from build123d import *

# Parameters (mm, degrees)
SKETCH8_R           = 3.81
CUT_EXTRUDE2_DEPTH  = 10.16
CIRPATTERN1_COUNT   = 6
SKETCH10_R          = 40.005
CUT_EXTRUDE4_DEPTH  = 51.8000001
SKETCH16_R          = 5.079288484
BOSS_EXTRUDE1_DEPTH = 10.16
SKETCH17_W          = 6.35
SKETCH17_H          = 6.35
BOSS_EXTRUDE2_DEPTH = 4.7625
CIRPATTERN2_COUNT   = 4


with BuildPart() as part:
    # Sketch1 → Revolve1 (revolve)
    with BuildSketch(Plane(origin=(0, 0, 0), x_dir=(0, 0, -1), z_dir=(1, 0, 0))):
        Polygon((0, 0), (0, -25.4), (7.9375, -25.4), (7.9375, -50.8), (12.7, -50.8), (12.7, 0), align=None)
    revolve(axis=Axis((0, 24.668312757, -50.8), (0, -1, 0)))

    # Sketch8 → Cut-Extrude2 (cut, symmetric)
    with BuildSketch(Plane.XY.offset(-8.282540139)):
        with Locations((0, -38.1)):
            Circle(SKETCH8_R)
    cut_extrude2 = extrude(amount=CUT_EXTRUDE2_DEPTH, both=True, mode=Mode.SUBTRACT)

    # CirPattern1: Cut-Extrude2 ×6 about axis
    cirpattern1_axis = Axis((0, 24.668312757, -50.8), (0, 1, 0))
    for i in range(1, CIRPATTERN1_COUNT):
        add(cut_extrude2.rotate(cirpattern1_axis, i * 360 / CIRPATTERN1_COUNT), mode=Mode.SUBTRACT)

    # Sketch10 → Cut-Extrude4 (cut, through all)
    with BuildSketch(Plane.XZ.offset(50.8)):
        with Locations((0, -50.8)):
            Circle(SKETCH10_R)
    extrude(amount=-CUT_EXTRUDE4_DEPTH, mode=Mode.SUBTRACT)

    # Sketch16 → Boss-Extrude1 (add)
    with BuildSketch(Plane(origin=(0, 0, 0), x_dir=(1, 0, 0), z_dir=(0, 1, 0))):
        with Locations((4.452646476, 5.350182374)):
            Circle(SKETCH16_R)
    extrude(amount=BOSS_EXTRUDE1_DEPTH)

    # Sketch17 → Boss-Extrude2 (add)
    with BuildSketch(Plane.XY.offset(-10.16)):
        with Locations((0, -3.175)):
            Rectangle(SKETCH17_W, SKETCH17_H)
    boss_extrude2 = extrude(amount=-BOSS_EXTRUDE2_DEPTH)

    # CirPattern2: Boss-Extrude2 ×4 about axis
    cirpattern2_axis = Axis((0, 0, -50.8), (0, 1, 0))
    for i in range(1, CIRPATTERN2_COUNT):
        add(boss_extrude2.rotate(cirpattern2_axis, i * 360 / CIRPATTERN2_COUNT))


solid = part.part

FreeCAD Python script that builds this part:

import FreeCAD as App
import Part
import Sketcher
Q = App.Units.Quantity


def add_polygon(sketch, points):
    """Adds a closed chain of lines whose ends are joined by coincident constraints."""
    first, n = sketch.GeometryCount, len(points)
    for a, b in zip(points, points[1:] + points[:1]):
        sketch.addGeometry(Part.LineSegment(App.Vector(*a, 0), App.Vector(*b, 0)), False)
    for i in range(n):
        sketch.addConstraint(Sketcher.Constraint("Coincident", first + i, 2, first + (i + 1) % n, 1))

doc = App.newDocument("Part")
params = doc.addObject("Spreadsheet::Sheet", "Params")
for row, (alias, value) in enumerate([
    ("sketch1_width", "1 in"),
    ("sketch1_height", "0.5 in"),
    ("sketch1_height2", "0.3125 in"),
    ("revolution_angle", "360 deg"),
    ("sketch2_diameter", "0.3 in"),
    ("pocket1_length", "0.8 in"),
    ("sketch3_diameter", "3.15 in"),
    ("pad1_length", "0.4 in"),
    ("sketch5_width", "0.25 in"),
    ("pad2_length", "0.1875 in"),
], start=1):
    params.set(f"A{row}", alias)
    params.set(f"B{row}", "=" + value)
    params.setAlias(f"B{row}", alias)

body = doc.addObject("PartDesign::Body", "Body")

# Sketch on YZ plane
sketch1 = body.newObject("Sketcher::SketchObject", "Sketch")
sketch1.AttachmentSupport = (doc.getObject("YZ_Plane"), [""])
sketch1.MapMode = "FlatFace"
add_polygon(sketch1, [(0, 0), (-25.4, 0), (-25.4, -7.9), (-50.8, -7.9), (-50.8, -12.7), (0, -12.7)])  # lines 0-5
sketch1.addGeometry(Part.LineSegment(App.Vector(0, -50.8, 0), App.Vector(-50.8, -50.8, 0)), True)  # axis
sketch1.addConstraint(Sketcher.Constraint("Horizontal", 0))
sketch1.addConstraint(Sketcher.Constraint("Vertical", 1))
sketch1.addConstraint(Sketcher.Constraint("Horizontal", 2))
sketch1.addConstraint(Sketcher.Constraint("Vertical", 3))
sketch1.addConstraint(Sketcher.Constraint("Horizontal", 4))
sketch1.addConstraint(Sketcher.Constraint("Vertical", 5))
sketch1.addConstraint(Sketcher.Constraint("Horizontal", 6))
sketch1.addConstraint(Sketcher.Constraint("Coincident", 5, 2, -1, 1))
sketch1.addConstraint(Sketcher.Constraint("PointOnObject", 6, 1, -2))
sketch1.addConstraint(Sketcher.Constraint("Vertical", 3, 2, 6, 2))
sketch1.addConstraint(Sketcher.Constraint("Equal", 0, 2))
sketch1.addConstraint(Sketcher.Constraint("DistanceX", 0, 2, 0, 1, Q("1 in")))
sketch1.addConstraint(Sketcher.Constraint("DistanceY", 5, 1, 5, 2, Q("0.5 in")))
sketch1.addConstraint(Sketcher.Constraint("DistanceY", 6, 1, -1, 1, Q("2 in")))
sketch1.addConstraint(Sketcher.Constraint("DistanceY", 1, 2, 1, 1, Q("0.3125 in")))
sketch1.setExpression("Constraints[17]", "Params.sketch1_width")
sketch1.setExpression("Constraints[18]", "Params.sketch1_height")
sketch1.setExpression("Constraints[20]", "Params.sketch1_height2")
revolution = body.newObject("PartDesign::Revolution", "Revolution")
revolution.Profile = sketch1
revolution.ReferenceAxis = (sketch1, ["Axis0"])
revolution.setExpression("Angle", "Params.revolution_angle")

# Sketch on XY plane
sketch2 = body.newObject("Sketcher::SketchObject", "Sketch001")
sketch2.AttachmentSupport = (doc.getObject("XY_Plane"), [""])
sketch2.MapMode = "FlatFace"
sketch2.AttachmentOffset = App.Placement(App.Vector(0, 0, -8.28254), App.Rotation())
sketch2.addGeometry(Part.Circle(App.Vector(0, -38.1, 0), App.Vector(0, 0, 1), 3.8), False)
sketch2.addConstraint(Sketcher.Constraint("PointOnObject", 0, 3, -2))
sketch2.addConstraint(Sketcher.Constraint("Diameter", 0, Q("0.3 in")))
sketch2.addConstraint(Sketcher.Constraint("DistanceY", 0, 3, -1, 1, Q("1.5 in")))
sketch2.setExpression("Constraints[1]", "Params.sketch2_diameter")
pocket1 = body.newObject("PartDesign::Pocket", "Pocket")
pocket1.Profile = sketch2
pocket1.setExpression("Length", "Params.pocket1_length")
pocket1.Midplane = True
doc.recompute()

datumline = body.newObject("PartDesign::Line", "DatumLine")
datumline.Placement = App.Placement(App.Vector(0, 0, -50.8), App.Rotation(App.Vector(0, 0, 1), App.Vector(0, 1, 0)))
polarpattern = body.newObject("PartDesign::PolarPattern", "PolarPattern")
polarpattern.Originals = [pocket1]
polarpattern.Axis = (datumline, [""])
polarpattern.Angle = 360
polarpattern.Occurrences = 6
body.Tip = polarpattern

# Sketch on XZ plane
sketch3 = body.newObject("Sketcher::SketchObject", "Sketch002")
sketch3.AttachmentSupport = (doc.getObject("XZ_Plane"), [""])
sketch3.MapMode = "FlatFace"
sketch3.AttachmentOffset = App.Placement(App.Vector(0, 0, 2 * 25.4), App.Rotation())
sketch3.addGeometry(Part.Circle(App.Vector(0, -51, 0), App.Vector(0, 0, 1), 40), False)
sketch3.addConstraint(Sketcher.Constraint("PointOnObject", 0, 3, -2))
sketch3.addConstraint(Sketcher.Constraint("Diameter", 0, Q("3.15 in")))
sketch3.addConstraint(Sketcher.Constraint("DistanceY", 0, 3, -1, 1, Q("2 in")))
sketch3.setExpression("Constraints[1]", "Params.sketch3_diameter")
pocket2 = body.newObject("PartDesign::Pocket", "Pocket001")
pocket2.Profile = sketch3
pocket2.Type = "ThroughAll"

# Sketch on XZ plane
sketch4 = body.newObject("Sketcher::SketchObject", "Sketch003")
sketch4.AttachmentSupport = (doc.getObject("XZ_Plane"), [""])
sketch4.MapMode = "FlatFace"
sketch4.addGeometry(Part.Circle(App.Vector(4, -5, 0), App.Vector(0, 0, 1), 5), False)
sketch4.addConstraint(Sketcher.Constraint("Diameter", 0, Q("10.158577 mm")))
sketch4.addConstraint(Sketcher.Constraint("DistanceX", -1, 1, 0, 3, Q("4.452646 mm")))
sketch4.addConstraint(Sketcher.Constraint("DistanceY", 0, 3, -1, 1, Q("5.350182 mm")))
pad1 = body.newObject("PartDesign::Pad", "Pad")
pad1.Profile = sketch4
pad1.setExpression("Length", "Params.pad1_length")
pad1.Reversed = True

# Sketch on XY plane
sketch5 = body.newObject("Sketcher::SketchObject", "Sketch004")
sketch5.AttachmentSupport = (doc.getObject("XY_Plane"), [""])
sketch5.MapMode = "FlatFace"
sketch5.AttachmentOffset = App.Placement(App.Vector(0, 0, -0.4 * 25.4), App.Rotation())
add_polygon(sketch5, [(-3, 0), (-3, -6), (3, -6), (3, 0)])  # lines 0-3
sketch5.addConstraint(Sketcher.Constraint("Vertical", 0))
sketch5.addConstraint(Sketcher.Constraint("Horizontal", 1))
sketch5.addConstraint(Sketcher.Constraint("Vertical", 2))
sketch5.addConstraint(Sketcher.Constraint("Horizontal", 3))
sketch5.addConstraint(Sketcher.Constraint("Symmetric", 2, 2, 3, 2, -1, 1))
sketch5.addConstraint(Sketcher.Constraint("Equal", 3, 0))
sketch5.addConstraint(Sketcher.Constraint("DistanceX", 1, 1, 1, 2, Q("0.25 in")))
sketch5.setExpression("Constraints[10]", "Params.sketch5_width")
pad2 = body.newObject("PartDesign::Pad", "Pad001")
pad2.Profile = sketch5
pad2.setExpression("Length", "Params.pad2_length")
pad2.Reversed = True
doc.recompute()

datumline2 = body.newObject("PartDesign::Line", "DatumLine001")
datumline2.Placement = App.Placement(App.Vector(0, 0, -50.8), App.Rotation(App.Vector(0, 0, 1), App.Vector(0, 1, 0)))
polarpattern2 = body.newObject("PartDesign::PolarPattern", "PolarPattern001")
polarpattern2.Originals = [pad2]
polarpattern2.Axis = (datumline2, [""])
polarpattern2.Angle = 360
polarpattern2.Occurrences = 4
body.Tip = polarpattern2

doc.recompute()
